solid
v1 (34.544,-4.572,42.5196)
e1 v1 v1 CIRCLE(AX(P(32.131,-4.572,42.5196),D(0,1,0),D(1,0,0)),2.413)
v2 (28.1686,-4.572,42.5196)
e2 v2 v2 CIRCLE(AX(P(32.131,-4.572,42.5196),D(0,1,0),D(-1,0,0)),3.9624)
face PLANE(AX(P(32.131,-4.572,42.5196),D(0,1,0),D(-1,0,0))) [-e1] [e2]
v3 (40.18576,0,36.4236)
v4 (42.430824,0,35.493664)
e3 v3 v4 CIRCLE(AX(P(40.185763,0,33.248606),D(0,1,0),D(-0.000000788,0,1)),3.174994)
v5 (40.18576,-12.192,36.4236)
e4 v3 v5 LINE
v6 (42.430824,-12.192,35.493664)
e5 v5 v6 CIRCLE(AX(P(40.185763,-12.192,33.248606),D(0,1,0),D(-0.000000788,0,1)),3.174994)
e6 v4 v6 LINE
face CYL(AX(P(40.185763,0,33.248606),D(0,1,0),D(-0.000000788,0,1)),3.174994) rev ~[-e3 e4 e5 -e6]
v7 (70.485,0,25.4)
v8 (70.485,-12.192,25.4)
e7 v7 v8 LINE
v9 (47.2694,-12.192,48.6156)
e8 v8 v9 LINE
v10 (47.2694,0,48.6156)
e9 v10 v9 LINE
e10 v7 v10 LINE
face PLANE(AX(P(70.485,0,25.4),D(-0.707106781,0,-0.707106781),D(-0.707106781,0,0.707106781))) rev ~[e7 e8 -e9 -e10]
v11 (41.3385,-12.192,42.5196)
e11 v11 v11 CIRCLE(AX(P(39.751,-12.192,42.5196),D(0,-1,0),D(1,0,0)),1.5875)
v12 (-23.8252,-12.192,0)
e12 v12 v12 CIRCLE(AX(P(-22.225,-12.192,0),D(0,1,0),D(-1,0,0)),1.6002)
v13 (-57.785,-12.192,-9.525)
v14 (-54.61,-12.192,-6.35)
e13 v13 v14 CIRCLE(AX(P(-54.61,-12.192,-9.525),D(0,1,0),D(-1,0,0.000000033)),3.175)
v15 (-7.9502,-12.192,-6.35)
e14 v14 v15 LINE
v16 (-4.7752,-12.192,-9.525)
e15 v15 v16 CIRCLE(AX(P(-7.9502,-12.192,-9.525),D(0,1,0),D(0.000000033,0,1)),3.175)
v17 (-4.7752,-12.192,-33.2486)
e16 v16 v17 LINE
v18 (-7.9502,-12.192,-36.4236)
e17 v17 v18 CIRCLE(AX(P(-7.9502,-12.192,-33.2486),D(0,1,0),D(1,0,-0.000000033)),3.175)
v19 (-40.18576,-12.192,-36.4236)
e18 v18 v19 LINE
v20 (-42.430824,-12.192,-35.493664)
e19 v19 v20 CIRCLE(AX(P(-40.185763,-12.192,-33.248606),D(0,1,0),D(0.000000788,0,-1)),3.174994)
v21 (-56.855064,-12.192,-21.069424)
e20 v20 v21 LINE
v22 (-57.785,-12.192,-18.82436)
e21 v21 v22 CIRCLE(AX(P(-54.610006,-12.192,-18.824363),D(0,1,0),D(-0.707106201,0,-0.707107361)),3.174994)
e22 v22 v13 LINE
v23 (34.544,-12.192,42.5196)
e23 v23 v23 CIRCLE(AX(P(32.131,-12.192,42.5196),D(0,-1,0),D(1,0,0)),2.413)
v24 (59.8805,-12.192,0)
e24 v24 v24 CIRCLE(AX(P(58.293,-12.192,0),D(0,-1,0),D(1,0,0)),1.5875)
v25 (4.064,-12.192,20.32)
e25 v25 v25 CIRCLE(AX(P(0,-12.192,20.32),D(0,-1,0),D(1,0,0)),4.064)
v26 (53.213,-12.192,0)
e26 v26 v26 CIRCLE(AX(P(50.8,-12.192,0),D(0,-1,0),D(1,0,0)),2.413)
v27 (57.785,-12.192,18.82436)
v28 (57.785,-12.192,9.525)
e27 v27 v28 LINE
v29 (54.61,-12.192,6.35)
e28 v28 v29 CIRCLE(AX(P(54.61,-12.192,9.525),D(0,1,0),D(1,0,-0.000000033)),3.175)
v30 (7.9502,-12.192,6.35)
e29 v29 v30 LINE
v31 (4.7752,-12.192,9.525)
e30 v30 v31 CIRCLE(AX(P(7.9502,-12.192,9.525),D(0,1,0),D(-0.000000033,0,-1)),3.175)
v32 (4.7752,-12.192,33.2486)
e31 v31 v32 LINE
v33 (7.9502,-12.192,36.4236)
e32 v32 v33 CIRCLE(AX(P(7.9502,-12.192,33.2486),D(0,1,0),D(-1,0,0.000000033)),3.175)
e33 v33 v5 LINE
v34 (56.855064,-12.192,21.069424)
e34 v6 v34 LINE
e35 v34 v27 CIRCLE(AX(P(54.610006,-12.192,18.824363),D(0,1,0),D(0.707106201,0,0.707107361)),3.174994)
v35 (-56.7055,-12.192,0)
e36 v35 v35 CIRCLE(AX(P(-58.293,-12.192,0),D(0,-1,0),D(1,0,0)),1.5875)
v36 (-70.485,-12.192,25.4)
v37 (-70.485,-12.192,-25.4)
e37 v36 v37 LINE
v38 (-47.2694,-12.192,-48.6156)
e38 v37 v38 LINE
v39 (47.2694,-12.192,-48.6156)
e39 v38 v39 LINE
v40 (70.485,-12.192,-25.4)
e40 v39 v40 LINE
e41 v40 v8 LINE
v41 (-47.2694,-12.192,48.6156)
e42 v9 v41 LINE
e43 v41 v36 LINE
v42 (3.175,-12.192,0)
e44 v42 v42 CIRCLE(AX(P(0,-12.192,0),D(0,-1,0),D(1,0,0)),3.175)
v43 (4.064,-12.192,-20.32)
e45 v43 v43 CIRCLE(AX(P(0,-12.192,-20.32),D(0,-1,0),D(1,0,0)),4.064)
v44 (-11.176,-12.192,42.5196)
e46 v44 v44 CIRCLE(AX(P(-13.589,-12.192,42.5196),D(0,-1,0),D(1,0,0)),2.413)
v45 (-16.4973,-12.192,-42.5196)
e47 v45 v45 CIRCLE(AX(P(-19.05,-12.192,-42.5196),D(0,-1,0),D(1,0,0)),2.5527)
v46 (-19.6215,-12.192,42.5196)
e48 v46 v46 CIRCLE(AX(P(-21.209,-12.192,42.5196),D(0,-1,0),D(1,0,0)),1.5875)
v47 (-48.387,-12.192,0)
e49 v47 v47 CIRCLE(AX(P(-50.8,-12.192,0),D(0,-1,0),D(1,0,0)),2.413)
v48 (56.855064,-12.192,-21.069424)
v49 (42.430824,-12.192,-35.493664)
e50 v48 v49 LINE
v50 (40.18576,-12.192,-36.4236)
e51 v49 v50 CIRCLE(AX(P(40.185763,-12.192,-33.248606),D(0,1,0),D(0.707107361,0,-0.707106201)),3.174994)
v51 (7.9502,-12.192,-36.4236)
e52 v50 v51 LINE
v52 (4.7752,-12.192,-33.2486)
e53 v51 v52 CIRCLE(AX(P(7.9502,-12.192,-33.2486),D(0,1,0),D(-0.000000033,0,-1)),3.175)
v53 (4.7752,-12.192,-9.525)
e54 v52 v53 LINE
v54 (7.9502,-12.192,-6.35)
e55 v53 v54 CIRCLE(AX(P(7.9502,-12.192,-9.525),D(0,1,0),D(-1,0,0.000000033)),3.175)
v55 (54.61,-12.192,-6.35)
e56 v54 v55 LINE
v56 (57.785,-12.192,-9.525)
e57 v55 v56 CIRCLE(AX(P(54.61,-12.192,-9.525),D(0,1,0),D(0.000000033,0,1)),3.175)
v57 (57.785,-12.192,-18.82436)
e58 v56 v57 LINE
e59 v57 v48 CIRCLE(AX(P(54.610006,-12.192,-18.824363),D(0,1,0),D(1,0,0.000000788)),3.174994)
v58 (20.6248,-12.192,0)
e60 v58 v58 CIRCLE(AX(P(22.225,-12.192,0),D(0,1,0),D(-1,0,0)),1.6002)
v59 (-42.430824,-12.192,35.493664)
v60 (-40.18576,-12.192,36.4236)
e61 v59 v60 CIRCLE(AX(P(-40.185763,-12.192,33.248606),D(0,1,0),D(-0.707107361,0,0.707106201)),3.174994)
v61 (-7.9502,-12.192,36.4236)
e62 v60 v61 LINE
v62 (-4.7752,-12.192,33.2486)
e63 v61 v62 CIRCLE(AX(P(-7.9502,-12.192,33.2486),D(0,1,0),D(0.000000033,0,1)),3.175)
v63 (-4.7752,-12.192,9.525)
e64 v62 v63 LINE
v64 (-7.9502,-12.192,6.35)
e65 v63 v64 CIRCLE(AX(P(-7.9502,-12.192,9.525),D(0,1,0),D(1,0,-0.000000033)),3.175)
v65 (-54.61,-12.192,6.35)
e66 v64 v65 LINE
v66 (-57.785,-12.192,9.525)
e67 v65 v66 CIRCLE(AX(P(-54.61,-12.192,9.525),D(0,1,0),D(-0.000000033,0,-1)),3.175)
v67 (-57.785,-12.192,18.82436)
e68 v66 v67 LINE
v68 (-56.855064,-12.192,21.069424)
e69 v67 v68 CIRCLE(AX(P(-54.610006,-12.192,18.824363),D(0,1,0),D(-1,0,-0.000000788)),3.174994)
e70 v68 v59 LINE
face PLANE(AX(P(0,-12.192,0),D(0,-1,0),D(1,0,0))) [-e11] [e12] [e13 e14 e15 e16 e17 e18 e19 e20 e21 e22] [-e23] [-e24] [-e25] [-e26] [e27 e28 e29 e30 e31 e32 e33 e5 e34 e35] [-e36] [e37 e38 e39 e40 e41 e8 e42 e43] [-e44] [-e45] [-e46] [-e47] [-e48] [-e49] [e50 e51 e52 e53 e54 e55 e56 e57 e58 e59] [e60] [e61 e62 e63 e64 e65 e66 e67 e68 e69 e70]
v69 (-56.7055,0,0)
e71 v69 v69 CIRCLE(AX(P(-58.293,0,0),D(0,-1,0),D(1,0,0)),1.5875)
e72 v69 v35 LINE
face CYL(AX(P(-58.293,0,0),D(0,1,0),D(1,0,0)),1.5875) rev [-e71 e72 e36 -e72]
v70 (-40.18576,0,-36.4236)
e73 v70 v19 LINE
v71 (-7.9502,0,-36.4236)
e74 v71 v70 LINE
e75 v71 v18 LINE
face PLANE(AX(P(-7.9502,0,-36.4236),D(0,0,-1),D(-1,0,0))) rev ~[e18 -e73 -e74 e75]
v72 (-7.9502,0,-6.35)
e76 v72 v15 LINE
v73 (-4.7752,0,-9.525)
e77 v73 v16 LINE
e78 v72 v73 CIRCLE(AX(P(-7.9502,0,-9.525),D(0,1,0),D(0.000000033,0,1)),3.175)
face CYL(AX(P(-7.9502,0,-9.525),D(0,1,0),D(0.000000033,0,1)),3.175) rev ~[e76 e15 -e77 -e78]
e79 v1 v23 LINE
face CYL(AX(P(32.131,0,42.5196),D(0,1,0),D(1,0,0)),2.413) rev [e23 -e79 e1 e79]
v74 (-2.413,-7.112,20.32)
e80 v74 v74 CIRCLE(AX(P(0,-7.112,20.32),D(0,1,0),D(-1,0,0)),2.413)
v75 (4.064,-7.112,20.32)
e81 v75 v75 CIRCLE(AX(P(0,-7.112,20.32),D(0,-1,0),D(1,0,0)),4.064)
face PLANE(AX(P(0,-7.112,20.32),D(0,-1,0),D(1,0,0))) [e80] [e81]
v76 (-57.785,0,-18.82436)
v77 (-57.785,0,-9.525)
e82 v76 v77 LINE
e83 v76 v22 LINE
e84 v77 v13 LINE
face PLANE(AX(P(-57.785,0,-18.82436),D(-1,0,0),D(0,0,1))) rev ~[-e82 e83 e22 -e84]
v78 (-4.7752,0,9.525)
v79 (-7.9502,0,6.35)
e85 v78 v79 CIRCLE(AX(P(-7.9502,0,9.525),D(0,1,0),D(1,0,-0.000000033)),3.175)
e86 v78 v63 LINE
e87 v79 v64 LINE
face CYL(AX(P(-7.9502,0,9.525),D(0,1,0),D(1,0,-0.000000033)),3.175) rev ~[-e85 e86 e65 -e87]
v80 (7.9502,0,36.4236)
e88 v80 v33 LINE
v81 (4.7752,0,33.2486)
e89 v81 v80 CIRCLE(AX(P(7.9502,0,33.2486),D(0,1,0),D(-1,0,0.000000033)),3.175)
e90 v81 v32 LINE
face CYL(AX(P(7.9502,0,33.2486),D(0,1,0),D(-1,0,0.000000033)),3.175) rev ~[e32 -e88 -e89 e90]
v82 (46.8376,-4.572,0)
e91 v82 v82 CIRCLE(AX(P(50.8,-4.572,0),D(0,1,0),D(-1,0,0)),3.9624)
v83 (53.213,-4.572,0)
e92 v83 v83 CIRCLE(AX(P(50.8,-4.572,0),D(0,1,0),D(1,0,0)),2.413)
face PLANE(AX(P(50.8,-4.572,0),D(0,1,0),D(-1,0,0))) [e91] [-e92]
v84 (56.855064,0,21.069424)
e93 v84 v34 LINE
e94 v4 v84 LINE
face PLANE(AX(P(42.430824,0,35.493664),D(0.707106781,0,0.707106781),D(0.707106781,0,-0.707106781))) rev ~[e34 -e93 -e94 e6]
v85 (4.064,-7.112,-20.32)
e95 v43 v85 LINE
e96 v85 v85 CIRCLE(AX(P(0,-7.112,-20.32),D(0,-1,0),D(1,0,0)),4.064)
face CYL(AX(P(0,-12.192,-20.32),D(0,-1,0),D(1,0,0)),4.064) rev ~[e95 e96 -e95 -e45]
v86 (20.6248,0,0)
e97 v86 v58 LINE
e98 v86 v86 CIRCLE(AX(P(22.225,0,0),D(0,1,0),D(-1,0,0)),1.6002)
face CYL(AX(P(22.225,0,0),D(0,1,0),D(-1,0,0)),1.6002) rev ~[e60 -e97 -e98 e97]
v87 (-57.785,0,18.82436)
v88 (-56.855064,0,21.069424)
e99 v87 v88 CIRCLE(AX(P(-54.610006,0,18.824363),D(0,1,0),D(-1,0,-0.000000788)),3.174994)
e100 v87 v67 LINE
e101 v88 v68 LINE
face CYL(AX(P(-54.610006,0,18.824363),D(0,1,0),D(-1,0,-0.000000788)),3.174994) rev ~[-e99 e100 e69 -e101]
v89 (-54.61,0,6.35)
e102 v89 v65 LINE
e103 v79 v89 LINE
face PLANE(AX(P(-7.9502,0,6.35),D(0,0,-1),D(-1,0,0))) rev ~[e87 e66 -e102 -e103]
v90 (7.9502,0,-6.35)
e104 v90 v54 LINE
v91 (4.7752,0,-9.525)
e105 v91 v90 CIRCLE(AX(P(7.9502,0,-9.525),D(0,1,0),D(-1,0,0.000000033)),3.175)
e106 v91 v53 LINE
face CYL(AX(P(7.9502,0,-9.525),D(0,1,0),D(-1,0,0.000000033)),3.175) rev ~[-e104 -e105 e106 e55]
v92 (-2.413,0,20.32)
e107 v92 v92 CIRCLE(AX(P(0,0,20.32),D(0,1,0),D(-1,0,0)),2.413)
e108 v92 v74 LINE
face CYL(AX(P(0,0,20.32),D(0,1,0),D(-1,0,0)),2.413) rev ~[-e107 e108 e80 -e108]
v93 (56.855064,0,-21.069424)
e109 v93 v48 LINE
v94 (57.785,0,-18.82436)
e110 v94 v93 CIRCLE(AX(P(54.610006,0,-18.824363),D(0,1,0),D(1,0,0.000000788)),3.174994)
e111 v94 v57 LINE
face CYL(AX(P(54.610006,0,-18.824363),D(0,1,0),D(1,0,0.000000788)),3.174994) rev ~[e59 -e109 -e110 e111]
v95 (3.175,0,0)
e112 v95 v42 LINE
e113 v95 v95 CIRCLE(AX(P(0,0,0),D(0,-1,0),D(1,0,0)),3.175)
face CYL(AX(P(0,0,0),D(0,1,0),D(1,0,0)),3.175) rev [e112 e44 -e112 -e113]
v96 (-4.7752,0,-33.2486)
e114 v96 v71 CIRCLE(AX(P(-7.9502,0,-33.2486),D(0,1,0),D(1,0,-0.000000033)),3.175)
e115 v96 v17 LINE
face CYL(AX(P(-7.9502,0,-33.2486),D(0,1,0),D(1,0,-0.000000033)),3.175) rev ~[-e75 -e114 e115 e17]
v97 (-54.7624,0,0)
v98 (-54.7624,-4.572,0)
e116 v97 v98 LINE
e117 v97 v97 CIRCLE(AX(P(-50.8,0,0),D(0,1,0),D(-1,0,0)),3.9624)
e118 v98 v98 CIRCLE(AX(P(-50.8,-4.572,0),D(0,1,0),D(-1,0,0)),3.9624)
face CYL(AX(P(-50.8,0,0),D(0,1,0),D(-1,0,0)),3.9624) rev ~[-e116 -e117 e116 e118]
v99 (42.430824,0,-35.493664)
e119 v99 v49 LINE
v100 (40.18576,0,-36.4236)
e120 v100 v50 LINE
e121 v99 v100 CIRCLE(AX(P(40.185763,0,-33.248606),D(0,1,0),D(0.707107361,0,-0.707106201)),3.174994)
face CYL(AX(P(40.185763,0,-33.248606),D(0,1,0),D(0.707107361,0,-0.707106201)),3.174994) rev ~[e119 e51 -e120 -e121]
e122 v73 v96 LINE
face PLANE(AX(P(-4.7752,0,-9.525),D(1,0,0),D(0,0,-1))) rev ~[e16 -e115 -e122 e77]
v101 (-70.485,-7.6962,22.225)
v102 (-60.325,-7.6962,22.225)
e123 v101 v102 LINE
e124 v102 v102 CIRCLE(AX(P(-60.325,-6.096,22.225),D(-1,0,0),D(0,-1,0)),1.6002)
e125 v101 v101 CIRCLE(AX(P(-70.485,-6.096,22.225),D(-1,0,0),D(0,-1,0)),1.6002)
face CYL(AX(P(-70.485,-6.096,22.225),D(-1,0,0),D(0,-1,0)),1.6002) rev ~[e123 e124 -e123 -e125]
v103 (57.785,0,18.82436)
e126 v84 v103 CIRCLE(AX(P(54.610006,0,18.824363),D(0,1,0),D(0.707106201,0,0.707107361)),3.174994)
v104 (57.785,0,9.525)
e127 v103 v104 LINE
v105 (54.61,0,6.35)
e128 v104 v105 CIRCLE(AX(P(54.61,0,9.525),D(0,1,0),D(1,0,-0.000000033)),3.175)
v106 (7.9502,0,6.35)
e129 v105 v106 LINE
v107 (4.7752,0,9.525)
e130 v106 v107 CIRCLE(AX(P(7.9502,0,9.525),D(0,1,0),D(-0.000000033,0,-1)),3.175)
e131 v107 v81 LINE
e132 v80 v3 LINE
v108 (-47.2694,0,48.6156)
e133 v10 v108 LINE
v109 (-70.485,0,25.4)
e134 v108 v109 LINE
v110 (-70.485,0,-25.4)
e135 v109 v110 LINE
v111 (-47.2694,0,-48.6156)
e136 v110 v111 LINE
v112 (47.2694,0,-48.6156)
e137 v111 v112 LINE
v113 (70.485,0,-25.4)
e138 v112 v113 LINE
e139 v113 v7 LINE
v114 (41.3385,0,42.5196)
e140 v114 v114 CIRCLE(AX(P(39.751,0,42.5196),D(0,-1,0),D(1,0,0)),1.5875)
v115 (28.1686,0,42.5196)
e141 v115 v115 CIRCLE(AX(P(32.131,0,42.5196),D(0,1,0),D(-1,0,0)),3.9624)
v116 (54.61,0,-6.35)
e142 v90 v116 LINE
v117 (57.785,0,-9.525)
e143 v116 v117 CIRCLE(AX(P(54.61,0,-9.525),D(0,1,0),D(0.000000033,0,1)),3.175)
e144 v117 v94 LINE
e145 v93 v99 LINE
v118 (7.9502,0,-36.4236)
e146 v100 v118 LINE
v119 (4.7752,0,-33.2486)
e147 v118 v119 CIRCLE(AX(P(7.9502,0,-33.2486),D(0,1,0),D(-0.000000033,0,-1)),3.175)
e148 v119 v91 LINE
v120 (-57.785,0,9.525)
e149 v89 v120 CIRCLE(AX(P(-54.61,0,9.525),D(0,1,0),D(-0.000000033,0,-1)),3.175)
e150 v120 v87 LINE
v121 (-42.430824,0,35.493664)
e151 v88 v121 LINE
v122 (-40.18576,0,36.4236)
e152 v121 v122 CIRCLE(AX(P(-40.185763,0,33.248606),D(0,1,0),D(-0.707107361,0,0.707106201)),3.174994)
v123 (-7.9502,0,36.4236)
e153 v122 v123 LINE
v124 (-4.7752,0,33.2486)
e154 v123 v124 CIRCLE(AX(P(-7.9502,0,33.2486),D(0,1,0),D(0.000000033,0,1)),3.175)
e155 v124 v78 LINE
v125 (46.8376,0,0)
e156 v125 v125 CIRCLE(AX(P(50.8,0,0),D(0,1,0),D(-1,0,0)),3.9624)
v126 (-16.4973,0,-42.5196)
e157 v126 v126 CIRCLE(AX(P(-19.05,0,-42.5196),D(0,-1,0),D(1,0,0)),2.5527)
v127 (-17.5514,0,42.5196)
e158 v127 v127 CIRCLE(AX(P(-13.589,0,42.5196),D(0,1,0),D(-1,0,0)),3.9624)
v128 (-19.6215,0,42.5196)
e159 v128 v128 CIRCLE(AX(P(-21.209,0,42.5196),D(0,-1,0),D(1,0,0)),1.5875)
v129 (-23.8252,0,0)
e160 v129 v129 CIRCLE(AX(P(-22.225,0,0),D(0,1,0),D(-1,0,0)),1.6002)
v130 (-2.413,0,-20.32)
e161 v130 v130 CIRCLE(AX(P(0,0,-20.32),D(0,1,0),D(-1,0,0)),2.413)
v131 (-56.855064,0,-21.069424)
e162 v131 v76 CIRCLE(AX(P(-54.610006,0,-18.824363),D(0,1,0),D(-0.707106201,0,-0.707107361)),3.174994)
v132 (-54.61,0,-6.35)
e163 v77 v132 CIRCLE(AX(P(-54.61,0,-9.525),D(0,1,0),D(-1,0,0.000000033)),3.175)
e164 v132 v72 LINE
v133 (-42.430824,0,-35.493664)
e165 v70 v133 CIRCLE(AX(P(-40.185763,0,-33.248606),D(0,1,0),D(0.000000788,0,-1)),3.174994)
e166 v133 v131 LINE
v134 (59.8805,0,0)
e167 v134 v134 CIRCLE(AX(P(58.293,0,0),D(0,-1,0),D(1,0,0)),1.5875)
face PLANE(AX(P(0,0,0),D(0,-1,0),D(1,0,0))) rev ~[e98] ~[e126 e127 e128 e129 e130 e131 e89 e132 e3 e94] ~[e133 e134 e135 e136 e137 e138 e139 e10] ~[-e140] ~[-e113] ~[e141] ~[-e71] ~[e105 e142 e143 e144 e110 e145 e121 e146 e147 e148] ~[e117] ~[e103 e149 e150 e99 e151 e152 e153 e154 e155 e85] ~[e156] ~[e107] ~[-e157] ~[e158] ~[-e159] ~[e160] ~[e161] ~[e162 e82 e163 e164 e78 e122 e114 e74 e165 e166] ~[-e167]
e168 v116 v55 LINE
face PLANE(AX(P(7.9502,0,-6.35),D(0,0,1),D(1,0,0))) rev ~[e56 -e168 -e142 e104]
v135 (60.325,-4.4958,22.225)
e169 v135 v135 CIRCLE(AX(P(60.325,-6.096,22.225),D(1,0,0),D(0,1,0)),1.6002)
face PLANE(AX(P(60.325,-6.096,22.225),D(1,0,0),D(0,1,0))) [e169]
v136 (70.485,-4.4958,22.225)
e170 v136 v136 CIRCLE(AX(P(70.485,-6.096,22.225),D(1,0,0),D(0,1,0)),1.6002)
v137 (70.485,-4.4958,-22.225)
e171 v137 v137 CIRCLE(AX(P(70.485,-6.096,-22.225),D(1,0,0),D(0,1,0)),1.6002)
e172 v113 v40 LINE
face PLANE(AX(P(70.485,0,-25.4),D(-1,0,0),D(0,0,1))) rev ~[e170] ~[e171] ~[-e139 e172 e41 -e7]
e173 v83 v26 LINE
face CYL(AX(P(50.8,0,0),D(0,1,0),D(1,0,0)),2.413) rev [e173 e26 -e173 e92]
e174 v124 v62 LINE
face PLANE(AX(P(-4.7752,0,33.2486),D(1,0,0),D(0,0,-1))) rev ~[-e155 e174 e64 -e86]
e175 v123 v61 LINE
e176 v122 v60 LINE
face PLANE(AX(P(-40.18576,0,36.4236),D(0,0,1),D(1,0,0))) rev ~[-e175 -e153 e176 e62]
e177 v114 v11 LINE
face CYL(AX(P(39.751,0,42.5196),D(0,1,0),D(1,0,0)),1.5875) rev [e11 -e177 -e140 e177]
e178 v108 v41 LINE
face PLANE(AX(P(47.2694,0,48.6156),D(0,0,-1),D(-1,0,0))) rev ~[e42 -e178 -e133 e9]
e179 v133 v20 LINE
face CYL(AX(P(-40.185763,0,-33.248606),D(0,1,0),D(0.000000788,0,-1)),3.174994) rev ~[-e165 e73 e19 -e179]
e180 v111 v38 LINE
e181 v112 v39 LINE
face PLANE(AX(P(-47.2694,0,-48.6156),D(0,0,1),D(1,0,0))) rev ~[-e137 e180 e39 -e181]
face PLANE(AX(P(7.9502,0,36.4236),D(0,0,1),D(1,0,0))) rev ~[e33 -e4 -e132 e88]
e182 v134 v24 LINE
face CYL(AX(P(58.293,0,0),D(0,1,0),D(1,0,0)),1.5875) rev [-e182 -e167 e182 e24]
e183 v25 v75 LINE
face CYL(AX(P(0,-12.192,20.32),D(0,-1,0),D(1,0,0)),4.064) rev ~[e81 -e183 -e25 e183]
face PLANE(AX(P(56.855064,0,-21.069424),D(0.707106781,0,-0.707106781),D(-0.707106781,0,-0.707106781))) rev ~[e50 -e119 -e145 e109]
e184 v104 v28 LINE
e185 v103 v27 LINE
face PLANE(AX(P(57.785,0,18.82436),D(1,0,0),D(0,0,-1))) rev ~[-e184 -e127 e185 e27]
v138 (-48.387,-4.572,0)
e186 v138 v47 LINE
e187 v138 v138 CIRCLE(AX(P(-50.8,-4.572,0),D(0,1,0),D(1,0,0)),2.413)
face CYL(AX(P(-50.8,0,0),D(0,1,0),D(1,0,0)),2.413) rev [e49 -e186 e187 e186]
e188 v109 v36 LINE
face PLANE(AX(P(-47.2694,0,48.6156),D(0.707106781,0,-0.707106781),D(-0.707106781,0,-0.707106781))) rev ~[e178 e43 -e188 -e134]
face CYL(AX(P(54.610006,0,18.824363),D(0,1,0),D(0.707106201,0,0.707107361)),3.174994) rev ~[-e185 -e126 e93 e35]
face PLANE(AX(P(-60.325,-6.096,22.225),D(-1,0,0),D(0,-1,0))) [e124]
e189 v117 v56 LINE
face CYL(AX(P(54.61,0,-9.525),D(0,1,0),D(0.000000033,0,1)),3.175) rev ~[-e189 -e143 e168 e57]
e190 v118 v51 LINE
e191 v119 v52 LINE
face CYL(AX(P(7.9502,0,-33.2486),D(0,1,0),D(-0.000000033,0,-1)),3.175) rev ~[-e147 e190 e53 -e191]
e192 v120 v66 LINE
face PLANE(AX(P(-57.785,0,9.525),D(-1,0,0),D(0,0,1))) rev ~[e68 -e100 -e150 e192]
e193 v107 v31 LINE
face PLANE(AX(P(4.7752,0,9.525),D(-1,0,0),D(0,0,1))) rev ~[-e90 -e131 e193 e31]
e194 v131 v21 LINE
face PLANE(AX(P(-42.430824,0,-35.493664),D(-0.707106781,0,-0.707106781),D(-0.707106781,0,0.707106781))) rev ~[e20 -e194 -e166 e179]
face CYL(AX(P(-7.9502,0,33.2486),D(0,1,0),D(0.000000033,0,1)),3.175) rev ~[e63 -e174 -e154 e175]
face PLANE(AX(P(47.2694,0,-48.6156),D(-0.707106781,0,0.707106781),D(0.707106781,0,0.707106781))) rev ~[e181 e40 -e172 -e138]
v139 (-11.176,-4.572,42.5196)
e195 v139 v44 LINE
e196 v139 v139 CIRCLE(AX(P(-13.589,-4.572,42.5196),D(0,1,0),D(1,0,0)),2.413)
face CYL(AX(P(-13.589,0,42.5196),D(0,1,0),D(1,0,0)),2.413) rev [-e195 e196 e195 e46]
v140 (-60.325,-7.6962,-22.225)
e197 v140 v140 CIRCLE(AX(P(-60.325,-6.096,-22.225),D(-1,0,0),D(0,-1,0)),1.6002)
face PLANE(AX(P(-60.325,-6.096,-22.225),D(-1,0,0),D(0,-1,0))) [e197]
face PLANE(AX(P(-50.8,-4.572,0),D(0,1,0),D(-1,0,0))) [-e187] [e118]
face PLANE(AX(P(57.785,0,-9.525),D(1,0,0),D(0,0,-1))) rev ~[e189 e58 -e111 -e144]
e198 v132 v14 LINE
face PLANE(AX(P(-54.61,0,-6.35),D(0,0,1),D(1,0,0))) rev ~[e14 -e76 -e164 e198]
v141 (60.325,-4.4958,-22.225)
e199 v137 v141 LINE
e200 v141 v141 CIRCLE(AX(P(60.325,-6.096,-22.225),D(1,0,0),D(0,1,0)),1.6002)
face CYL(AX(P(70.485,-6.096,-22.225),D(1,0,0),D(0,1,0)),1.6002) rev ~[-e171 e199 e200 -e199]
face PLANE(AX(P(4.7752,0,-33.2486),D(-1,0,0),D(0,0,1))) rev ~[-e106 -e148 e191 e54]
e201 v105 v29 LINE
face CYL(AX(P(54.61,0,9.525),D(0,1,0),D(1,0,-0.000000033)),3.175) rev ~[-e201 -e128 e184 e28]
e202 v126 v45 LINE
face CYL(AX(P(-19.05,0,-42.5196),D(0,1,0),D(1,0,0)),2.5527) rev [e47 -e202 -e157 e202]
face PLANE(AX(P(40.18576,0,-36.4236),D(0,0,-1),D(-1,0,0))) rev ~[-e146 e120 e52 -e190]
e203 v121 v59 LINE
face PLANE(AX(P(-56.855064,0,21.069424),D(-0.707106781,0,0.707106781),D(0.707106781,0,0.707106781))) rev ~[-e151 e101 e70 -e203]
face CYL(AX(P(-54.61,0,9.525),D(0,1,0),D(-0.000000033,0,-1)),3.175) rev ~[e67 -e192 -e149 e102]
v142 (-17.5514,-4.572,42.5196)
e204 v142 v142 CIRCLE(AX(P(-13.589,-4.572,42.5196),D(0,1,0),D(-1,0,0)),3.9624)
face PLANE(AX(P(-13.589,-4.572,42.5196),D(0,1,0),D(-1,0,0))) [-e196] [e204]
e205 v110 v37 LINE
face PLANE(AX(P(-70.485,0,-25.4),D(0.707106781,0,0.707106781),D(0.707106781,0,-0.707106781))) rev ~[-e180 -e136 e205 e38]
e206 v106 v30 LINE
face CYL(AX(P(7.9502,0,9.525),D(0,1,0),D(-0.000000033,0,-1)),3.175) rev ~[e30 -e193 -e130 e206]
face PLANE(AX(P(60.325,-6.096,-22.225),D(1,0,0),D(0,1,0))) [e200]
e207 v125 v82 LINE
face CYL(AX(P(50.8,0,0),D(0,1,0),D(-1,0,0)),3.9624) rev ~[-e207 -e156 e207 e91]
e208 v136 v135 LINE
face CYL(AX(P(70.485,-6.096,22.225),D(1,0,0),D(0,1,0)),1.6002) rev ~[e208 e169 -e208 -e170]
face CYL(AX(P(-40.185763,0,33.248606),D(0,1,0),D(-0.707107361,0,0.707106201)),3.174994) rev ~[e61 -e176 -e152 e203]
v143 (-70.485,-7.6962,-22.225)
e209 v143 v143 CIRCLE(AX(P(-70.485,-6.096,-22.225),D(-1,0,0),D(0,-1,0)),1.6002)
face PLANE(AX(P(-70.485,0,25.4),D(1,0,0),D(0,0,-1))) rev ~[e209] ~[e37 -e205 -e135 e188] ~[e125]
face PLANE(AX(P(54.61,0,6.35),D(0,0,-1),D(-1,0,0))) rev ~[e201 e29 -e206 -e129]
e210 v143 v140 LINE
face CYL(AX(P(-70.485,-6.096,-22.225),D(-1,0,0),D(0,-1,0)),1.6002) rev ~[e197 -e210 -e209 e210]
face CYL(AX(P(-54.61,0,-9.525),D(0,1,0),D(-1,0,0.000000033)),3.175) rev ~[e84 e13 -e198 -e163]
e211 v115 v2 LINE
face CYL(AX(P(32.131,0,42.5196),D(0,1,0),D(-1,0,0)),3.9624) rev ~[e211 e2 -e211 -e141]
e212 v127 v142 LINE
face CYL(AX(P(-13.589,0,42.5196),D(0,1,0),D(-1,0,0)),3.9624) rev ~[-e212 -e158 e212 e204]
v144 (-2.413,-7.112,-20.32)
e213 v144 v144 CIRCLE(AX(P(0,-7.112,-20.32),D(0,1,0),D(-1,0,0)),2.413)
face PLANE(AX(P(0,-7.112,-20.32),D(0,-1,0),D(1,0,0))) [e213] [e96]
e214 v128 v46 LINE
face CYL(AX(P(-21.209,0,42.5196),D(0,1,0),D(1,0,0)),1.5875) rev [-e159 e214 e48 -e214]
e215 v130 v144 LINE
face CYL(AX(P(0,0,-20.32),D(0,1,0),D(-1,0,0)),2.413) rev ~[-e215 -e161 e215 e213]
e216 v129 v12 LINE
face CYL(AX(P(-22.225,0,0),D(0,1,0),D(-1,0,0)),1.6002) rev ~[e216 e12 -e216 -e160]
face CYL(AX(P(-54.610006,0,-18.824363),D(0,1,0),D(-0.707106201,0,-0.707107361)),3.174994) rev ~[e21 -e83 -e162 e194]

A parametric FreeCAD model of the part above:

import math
import FreeCAD as App
import Part
import Sketcher
from FreeCAD import Vector
Q = App.Units.Quantity

doc = App.newDocument("Part")
body = doc.addObject("PartDesign::Body", "Body")

# Sketch on XZ plane
sketch1 = body.newObject("Sketcher::SketchObject", "Sketch")
sketch1.AttachmentSupport = (doc.getObject("XZ_Plane"), [""])
sketch1.MapMode = "FlatFace"
sketch1.addGeometry(Part.LineSegment(Vector(47.3, 48.6, 0), Vector(-47.3, 48.6, 0)), False)
sketch1.addGeometry(Part.LineSegment(Vector(-47.3, 48.6, 0), Vector(-70.5, 25.4, 0)), False)
sketch1.addGeometry(Part.LineSegment(Vector(-70.5, 25.4, 0), Vector(-70.5, -25.4, 0)), False)
sketch1.addGeometry(Part.LineSegment(Vector(-70.5, -25.4, 0), Vector(-47.3, -48.6, 0)), False)
sketch1.addGeometry(Part.LineSegment(Vector(-47.3, -48.6, 0), Vector(47.3, -48.6, 0)), False)
sketch1.addGeometry(Part.LineSegment(Vector(47.3, -48.6, 0), Vector(70.5, -25.4, 0)), False)
sketch1.addGeometry(Part.LineSegment(Vector(70.5, -25.4, 0), Vector(70.5, 25.4, 0)), False)
sketch1.addGeometry(Part.LineSegment(Vector(70.5, 25.4, 0), Vector(47.3, 48.6, 0)), False)
sketch1.addGeometry(Part.Circle(Vector(-19.1, -42.5, 0), Vector(0, 0, 1), 2.6), False)
sketch1.addGeometry(Part.ArcOfCircle(Part.Circle(Vector(-8, -33.2, 0), Vector(0, 0, 1), 3.2), math.radians(-90), math.radians(0)), False)
sketch1.addGeometry(Part.LineSegment(Vector(-8, -36.4, 0), Vector(-40.2, -36.4, 0)), False)
sketch1.addGeometry(Part.ArcOfCircle(Part.Circle(Vector(-40.2, -33.2, 0), Vector(0, 0, 1), 3.2), math.radians(-135), math.radians(-90)), False)
sketch1.addGeometry(Part.LineSegment(Vector(-42.4, -35.5, 0), Vector(-56.9, -21.1, 0)), False)
sketch1.addGeometry(Part.ArcOfCircle(Part.Circle(Vector(-54.6, -18.8, 0), Vector(0, 0, 1), 3.2), math.radians(180), math.radians(225)), False)
sketch1.addGeometry(Part.LineSegment(Vector(-57.8, -18.8, 0), Vector(-57.8, -9.5, 0)), False)
sketch1.addGeometry(Part.ArcOfCircle(Part.Circle(Vector(-54.6, -9.5, 0), Vector(0, 0, 1), 3.2), math.radians(90), math.radians(180)), False)
sketch1.addGeometry(Part.LineSegment(Vector(-54.6, -6.3, 0), Vector(-8, -6.3, 0)), False)
sketch1.addGeometry(Part.ArcOfCircle(Part.Circle(Vector(-8, -9.5, 0), Vector(0, 0, 1), 3.2), math.radians(0), math.radians(90)), False)
sketch1.addGeometry(Part.LineSegment(Vector(-4.8, -9.5, 0), Vector(-4.8, -33.2, 0)), False)
sketch1.addGeometry(Part.LineSegment(Vector(57.8, -9.5, 0), Vector(57.8, -18.8, 0)), False)
sketch1.addGeometry(Part.ArcOfCircle(Part.Circle(Vector(54.6, -18.8, 0), Vector(0, 0, 1), 3.2), math.radians(-45), math.radians(0)), False)
sketch1.addGeometry(Part.LineSegment(Vector(56.9, -21.1, 0), Vector(42.4, -35.5, 0)), False)
sketch1.addGeometry(Part.ArcOfCircle(Part.Circle(Vector(40.2, -33.2, 0), Vector(0, 0, 1), 3.2), math.radians(-90), math.radians(-45)), False)
sketch1.addGeometry(Part.LineSegment(Vector(40.2, -36.4, 0), Vector(8, -36.4, 0)), False)
sketch1.addGeometry(Part.ArcOfCircle(Part.Circle(Vector(8, -33.2, 0), Vector(0, 0, 1), 3.2), math.radians(-180), math.radians(-90)), False)
sketch1.addGeometry(Part.LineSegment(Vector(4.8, -33.2, 0), Vector(4.8, -9.5, 0)), False)
sketch1.addGeometry(Part.ArcOfCircle(Part.Circle(Vector(8, -9.5, 0), Vector(0, 0, 1), 3.2), math.radians(90), math.radians(180)), False)
sketch1.addGeometry(Part.LineSegment(Vector(8, -6.3, 0), Vector(54.6, -6.3, 0)), False)
sketch1.addGeometry(Part.ArcOfCircle(Part.Circle(Vector(54.6, -9.5, 0), Vector(0, 0, 1), 3.2), math.radians(0), math.radians(90)), False)
sketch1.addGeometry(Part.Circle(Vector(-58.3, 0, 0), Vector(0, 0, 1), 1.6), False)
sketch1.addGeometry(Part.Circle(Vector(-50.8, 0, 0), Vector(0, 0, 1), 2.4), False)
sketch1.addGeometry(Part.ArcOfCircle(Part.Circle(Vector(-40.2, 33.2, 0), Vector(0, 0, 1), 3.2), math.radians(90), math.radians(135)), False)
sketch1.addGeometry(Part.LineSegment(Vector(-40.2, 36.4, 0), Vector(-8, 36.4, 0)), False)
sketch1.addGeometry(Part.ArcOfCircle(Part.Circle(Vector(-8, 33.2, 0), Vector(0, 0, 1), 3.2), math.radians(0), math.radians(90)), False)
sketch1.addGeometry(Part.LineSegment(Vector(-4.8, 33.2, 0), Vector(-4.8, 9.5, 0)), False)
sketch1.addGeometry(Part.ArcOfCircle(Part.Circle(Vector(-8, 9.5, 0), Vector(0, 0, 1), 3.2), math.radians(-90), math.radians(0)), False)
sketch1.addGeometry(Part.LineSegment(Vector(-8, 6.3, 0), Vector(-54.6, 6.3, 0)), False)
sketch1.addGeometry(Part.ArcOfCircle(Part.Circle(Vector(-54.6, 9.5, 0), Vector(0, 0, 1), 3.2), math.radians(-180), math.radians(-90)), False)
sketch1.addGeometry(Part.LineSegment(Vector(-57.8, 9.5, 0), Vector(-57.8, 18.8, 0)), False)
sketch1.addGeometry(Part.ArcOfCircle(Part.Circle(Vector(-54.6, 18.8, 0), Vector(0, 0, 1), 3.2), math.radians(135), math.radians(180)), False)
sketch1.addGeometry(Part.LineSegment(Vector(-56.9, 21.1, 0), Vector(-42.4, 35.5, 0)), False)
sketch1.addGeometry(Part.Circle(Vector(-21.2, 42.5, 0), Vector(0, 0, 1), 1.6), False)
sketch1.addGeometry(Part.Circle(Vector(-13.6, 42.5, 0), Vector(0, 0, 1), 2.4), False)
sketch1.addGeometry(Part.Circle(Vector(0, 0, 0), Vector(0, 0, 1), 3.2), False)
sketch1.addGeometry(Part.Circle(Vector(50.8, 0, 0), Vector(0, 0, 1), 2.4), False)
sketch1.addGeometry(Part.Circle(Vector(58.3, 0, 0), Vector(0, 0, 1), 1.6), False)
sketch1.addGeometry(Part.LineSegment(Vector(57.8, 18.8, 0), Vector(57.8, 9.5, 0)), False)
sketch1.addGeometry(Part.ArcOfCircle(Part.Circle(Vector(54.6, 9.5, 0), Vector(0, 0, 1), 3.2), math.radians(-90), math.radians(0)), False)
sketch1.addGeometry(Part.LineSegment(Vector(54.6, 6.3, 0), Vector(8, 6.3, 0)), False)
sketch1.addGeometry(Part.ArcOfCircle(Part.Circle(Vector(8, 9.5, 0), Vector(0, 0, 1), 3.2), math.radians(-180), math.radians(-90)), False)
sketch1.addGeometry(Part.LineSegment(Vector(4.8, 9.5, 0), Vector(4.8, 33.2, 0)), False)
sketch1.addGeometry(Part.ArcOfCircle(Part.Circle(Vector(8, 33.2, 0), Vector(0, 0, 1), 3.2), math.radians(90), math.radians(180)), False)
sketch1.addGeometry(Part.LineSegment(Vector(8, 36.4, 0), Vector(40.2, 36.4, 0)), False)
sketch1.addGeometry(Part.ArcOfCircle(Part.Circle(Vector(40.2, 33.2, 0), Vector(0, 0, 1), 3.2), math.radians(45), math.radians(90)), False)
sketch1.addGeometry(Part.LineSegment(Vector(42.4, 35.5, 0), Vector(56.9, 21.1, 0)), False)
sketch1.addGeometry(Part.ArcOfCircle(Part.Circle(Vector(54.6, 18.8, 0), Vector(0, 0, 1), 3.2), math.radians(0), math.radians(45)), False)
sketch1.addGeometry(Part.Circle(Vector(32.1, 42.5, 0), Vector(0, 0, 1), 2.4), False)
sketch1.addGeometry(Part.Circle(Vector(39.8, 42.5, 0), Vector(0, 0, 1), 1.6), False)
sketch1.addConstraint(Sketcher.Constraint("Coincident", 0, 2, 1, 1))
sketch1.addConstraint(Sketcher.Constraint("Coincident", 1, 2, 2, 1))
sketch1.addConstraint(Sketcher.Constraint("Coincident", 2, 2, 3, 1))
sketch1.addConstraint(Sketcher.Constraint("Coincident", 3, 2, 4, 1))
sketch1.addConstraint(Sketcher.Constraint("Coincident", 4, 2, 5, 1))
sketch1.addConstraint(Sketcher.Constraint("Coincident", 5, 2, 6, 1))
sketch1.addConstraint(Sketcher.Constraint("Coincident", 6, 2, 7, 1))
sketch1.addConstraint(Sketcher.Constraint("Coincident", 7, 2, 0, 1))
sketch1.addConstraint(Sketcher.Constraint("Tangent", 9, 1, 10, 1))
sketch1.addConstraint(Sketcher.Constraint("Tangent", 10, 2, 11, 2))
sketch1.addConstraint(Sketcher.Constraint("Tangent", 11, 1, 12, 1))
sketch1.addConstraint(Sketcher.Constraint("Tangent", 12, 2, 13, 2))
sketch1.addConstraint(Sketcher.Constraint("Tangent", 13, 1, 14, 1))
sketch1.addConstraint(Sketcher.Constraint("Tangent", 14, 2, 15, 2))
sketch1.addConstraint(Sketcher.Constraint("Tangent", 15, 1, 16, 1))
sketch1.addConstraint(Sketcher.Constraint("Tangent", 16, 2, 17, 2))
sketch1.addConstraint(Sketcher.Constraint("Tangent", 17, 1, 18, 1))
sketch1.addConstraint(Sketcher.Constraint("Tangent", 18, 2, 9, 2))
sketch1.addConstraint(Sketcher.Constraint("Tangent", 19, 2, 20, 2))
sketch1.addConstraint(Sketcher.Constraint("Tangent", 20, 1, 21, 1))
sketch1.addConstraint(Sketcher.Constraint("Tangent", 21, 2, 22, 2))
sketch1.addConstraint(Sketcher.Constraint("Tangent", 22, 1, 23, 1))
sketch1.addConstraint(Sketcher.Constraint("Tangent", 23, 2, 24, 2))
sketch1.addConstraint(Sketcher.Constraint("Tangent", 24, 1, 25, 1))
sketch1.addConstraint(Sketcher.Constraint("Tangent", 25, 2, 26, 2))
sketch1.addConstraint(Sketcher.Constraint("Tangent", 26, 1, 27, 1))
sketch1.addConstraint(Sketcher.Constraint("Tangent", 27, 2, 28, 2))
sketch1.addConstraint(Sketcher.Constraint("Tangent", 28, 1, 19, 1))
sketch1.addConstraint(Sketcher.Constraint("Tangent", 31, 1, 32, 1))
sketch1.addConstraint(Sketcher.Constraint("Tangent", 32, 2, 33, 2))
sketch1.addConstraint(Sketcher.Constraint("Tangent", 33, 1, 34, 1))
sketch1.addConstraint(Sketcher.Constraint("Tangent", 34, 2, 35, 2))
sketch1.addConstraint(Sketcher.Constraint("Tangent", 35, 1, 36, 1))
sketch1.addConstraint(Sketcher.Constraint("Tangent", 36, 2, 37, 2))
sketch1.addConstraint(Sketcher.Constraint("Tangent", 37, 1, 38, 1))
sketch1.addConstraint(Sketcher.Constraint("Tangent", 38, 2, 39, 2))
sketch1.addConstraint(Sketcher.Constraint("Tangent", 39, 1, 40, 1))
sketch1.addConstraint(Sketcher.Constraint("Tangent", 40, 2, 31, 2))
sketch1.addConstraint(Sketcher.Constraint("Tangent", 46, 2, 47, 2))
sketch1.addConstraint(Sketcher.Constraint("Tangent", 47, 1, 48, 1))
sketch1.addConstraint(Sketcher.Constraint("Tangent", 48, 2, 49, 2))
sketch1.addConstraint(Sketcher.Constraint("Tangent", 49, 1, 50, 1))
sketch1.addConstraint(Sketcher.Constraint("Tangent", 50, 2, 51, 2))
sketch1.addConstraint(Sketcher.Constraint("Tangent", 51, 1, 52, 1))
sketch1.addConstraint(Sketcher.Constraint("Tangent", 52, 2, 53, 2))
sketch1.addConstraint(Sketcher.Constraint("Tangent", 53, 1, 54, 1))
sketch1.addConstraint(Sketcher.Constraint("Tangent", 54, 2, 55, 2))
sketch1.addConstraint(Sketcher.Constraint("Tangent", 55, 1, 46, 1))
sketch1.addConstraint(Sketcher.Constraint("Horizontal", 0))
sketch1.addConstraint(Sketcher.Constraint("Vertical", 2))
sketch1.addConstraint(Sketcher.Constraint("Horizontal", 4))
sketch1.addConstraint(Sketcher.Constraint("Vertical", 6))
sketch1.addConstraint(Sketcher.Constraint("Horizontal", 10))
sketch1.addConstraint(Sketcher.Constraint("Vertical", 14))
sketch1.addConstraint(Sketcher.Constraint("Horizontal", 16))
sketch1.addConstraint(Sketcher.Constraint("Vertical", 18))
sketch1.addConstraint(Sketcher.Constraint("Vertical", 19))
sketch1.addConstraint(Sketcher.Constraint("Horizontal", 23))
sketch1.addConstraint(Sketcher.Constraint("Vertical", 25))
sketch1.addConstraint(Sketcher.Constraint("Horizontal", 27))
sketch1.addConstraint(Sketcher.Constraint("Horizontal", 32))
sketch1.addConstraint(Sketcher.Constraint("Vertical", 34))
sketch1.addConstraint(Sketcher.Constraint("Horizontal", 36))
sketch1.addConstraint(Sketcher.Constraint("Vertical", 38))
sketch1.addConstraint(Sketcher.Constraint("Vertical", 46))
sketch1.addConstraint(Sketcher.Constraint("Horizontal", 48))
sketch1.addConstraint(Sketcher.Constraint("Vertical", 50))
sketch1.addConstraint(Sketcher.Constraint("Horizontal", 52))
sketch1.addConstraint(Sketcher.Constraint("Coincident", 43, 3, -1, 1))
sketch1.addConstraint(Sketcher.Constraint("Equal", 11, 13))
sketch1.addConstraint(Sketcher.Constraint("Equal", 9, 15))
sketch1.addConstraint(Sketcher.Constraint("Equal", 15, 17))
sketch1.addConstraint(Sketcher.Constraint("Equal", 13, 20))
sketch1.addConstraint(Sketcher.Constraint("Equal", 20, 22))
sketch1.addConstraint(Sketcher.Constraint("Equal", 17, 24))
sketch1.addConstraint(Sketcher.Constraint("Equal", 24, 26))
sketch1.addConstraint(Sketcher.Constraint("Equal", 26, 28))
sketch1.addConstraint(Sketcher.Constraint("Equal", 22, 31))
sketch1.addConstraint(Sketcher.Constraint("Equal", 28, 33))
sketch1.addConstraint(Sketcher.Constraint("Equal", 33, 35))
sketch1.addConstraint(Sketcher.Constraint("Equal", 35, 37))
sketch1.addConstraint(Sketcher.Constraint("Equal", 31, 39))
sketch1.addConstraint(Sketcher.Constraint("Equal", 29, 41))
sketch1.addConstraint(Sketcher.Constraint("Equal", 30, 42))
sketch1.addConstraint(Sketcher.Constraint("Equal", 37, 43))
sketch1.addConstraint(Sketcher.Constraint("Equal", 42, 44))
sketch1.addConstraint(Sketcher.Constraint("Equal", 41, 45))
sketch1.addConstraint(Sketcher.Constraint("Equal", 43, 47))
sketch1.addConstraint(Sketcher.Constraint("Equal", 47, 49))
sketch1.addConstraint(Sketcher.Constraint("Equal", 49, 51))
sketch1.addConstraint(Sketcher.Constraint("Equal", 39, 53))
sketch1.addConstraint(Sketcher.Constraint("Equal", 53, 55))
sketch1.addConstraint(Sketcher.Constraint("Equal", 44, 56))
sketch1.addConstraint(Sketcher.Constraint("Equal", 45, 57))
sketch1.addConstraint(Sketcher.Constraint("Symmetric", 22, 3, 31, 3, -1, 1))
sketch1.addConstraint(Sketcher.Constraint("Symmetric", 26, 3, 35, 3, -1, 1))
sketch1.addConstraint(Sketcher.Constraint("Symmetric", 20, 3, 39, 3, -1, 1))
sketch1.addConstraint(Sketcher.Constraint("Symmetric", 30, 3, 44, 3, -1, 1))
sketch1.addConstraint(Sketcher.Constraint("Symmetric", 29, 3, 45, 3, -1, 1))
sketch1.addConstraint(Sketcher.Constraint("Symmetric", 15, 3, 47, 3, -1, 1))
sketch1.addConstraint(Sketcher.Constraint("Symmetric", 9, 3, 51, 3, -1, 1))
sketch1.addConstraint(Sketcher.Constraint("Symmetric", 0, 2, 4, 2, -1, 1))
sketch1.addConstraint(Sketcher.Constraint("Symmetric", 1, 2, 5, 2, -1, 1))
sketch1.addConstraint(Sketcher.Constraint("Symmetric", 11, 1, 53, 1, -1, 1))
sketch1.addConstraint(Sketcher.Constraint("Symmetric", 13, 3, 20, 3, -2))
sketch1.addConstraint(Sketcher.Constraint("Symmetric", 11, 3, 22, 3, -2))
sketch1.addConstraint(Sketcher.Constraint("Symmetric", 17, 3, 26, 3, -2))
sketch1.addConstraint(Sketcher.Constraint("PointOnObject", 29, 3, -1))
sketch1.addConstraint(Sketcher.Constraint("PointOnObject", 30, 3, -1))
sketch1.addConstraint(Sketcher.Constraint("Perpendicular", 1, 3))
sketch1.addConstraint(Sketcher.Constraint("Perpendicular", 5, 7))
sketch1.addConstraint(Sketcher.Constraint("Parallel", 7, 12))
sketch1.addConstraint(Sketcher.Constraint("Perpendicular", 12, 21))
sketch1.addConstraint(Sketcher.Constraint("Horizontal", 41, 3, 42, 3))
sketch1.addConstraint(Sketcher.Constraint("Horizontal", 42, 3, 56, 3))
sketch1.addConstraint(Sketcher.Constraint("Horizontal", 56, 3, 57, 3))
sketch1.addConstraint(Sketcher.Constraint("Horizontal", 2, 2, 5, 2))
sketch1.addConstraint(Sketcher.Constraint("Horizontal", 1, 2, 6, 2))
sketch1.addConstraint(Sketcher.Constraint("Diameter", 30, Q("0.19 in")))
sketch1.addConstraint(Sketcher.Constraint("Diameter", 43, Q("0.25 in")))
sketch1.addConstraint(Sketcher.Constraint("DistanceY", 2, 2, 2, 1, Q("2 in")))
sketch1.addConstraint(Sketcher.Constraint("Diameter", 8, Q("0.201 in")))
sketch1.addConstraint(Sketcher.Constraint("Diameter", 29, Q("0.125 in")))
sketch1.addConstraint(Sketcher.Constraint("DistanceX", 30, 3, -1, 1, Q("2 in")))
sketch1.addConstraint(Sketcher.Constraint("DistanceX", 0, 2, 0, 1, Q("3.722 in")))
sketch1.addConstraint(Sketcher.Constraint("DistanceX", 16, 1, 16, 2, Q("1.837 in")))
sketch1.addConstraint(Sketcher.Constraint("DistanceY", 18, 2, 18, 1, Q("0.934 in")))
sketch1.addConstraint(Sketcher.Constraint("DistanceX", 8, 3, -1, 1, Q("0.75 in")))
sketch1.addConstraint(Sketcher.Constraint("DistanceX", 15, 3, -1, 1, Q("2.15 in")))
sketch1.addConstraint(Sketcher.Constraint("DistanceY", 15, 1, -1, 1, Q("0.25 in")))
sketch1.addConstraint(Sketcher.Constraint("DistanceY", 8, 3, -1, 1, Q("1.674 in")))
sketch1.addConstraint(Sketcher.Constraint("DistanceX", 29, 3, -1, 1, Q("2.295 in")))
sketch1.addConstraint(Sketcher.Constraint("DistanceX", 41, 3, -1, 1, Q("0.835 in")))
sketch1.addConstraint(Sketcher.Constraint("DistanceY", -1, 1, 41, 3, Q("1.674 in")))
sketch1.addConstraint(Sketcher.Constraint("DistanceX", 42, 3, -1, 1, Q("0.535 in")))
sketch1.addConstraint(Sketcher.Constraint("DistanceX", -1, 1, 56, 3, Q("1.265 in")))
sketch1.addConstraint(Sketcher.Constraint("DistanceX", -1, 1, 57, 3, Q("1.565 in")))
sketch1.addConstraint(Sketcher.Constraint("DistanceY", -1, 1, 0, 2, Q("1.914 in")))
sketch1.addConstraint(Sketcher.Constraint("Radius", 11, 3.174994))
sketch1.addConstraint(Sketcher.Constraint("DistanceX", 10, 2, 10, 1, 32.23556))
pad1 = body.newObject("PartDesign::Pad", "Pad")
pad1.Profile = sketch1
pad1.Length = Q("0.48 in")

# Sketch on XZ plane
sketch2 = body.newObject("Sketcher::SketchObject", "Sketch001")
sketch2.AttachmentSupport = (doc.getObject("XZ_Plane"), [""])
sketch2.MapMode = "FlatFace"
sketch2.addGeometry(Part.Circle(Vector(-50.8, 0, 0), Vector(0, 0, 1), 4), False)
sketch2.addGeometry(Part.Circle(Vector(-13.6, 42.5, 0), Vector(0, 0, 1), 4), False)
sketch2.addGeometry(Part.Circle(Vector(32.1, 42.5, 0), Vector(0, 0, 1), 4), False)
sketch2.addGeometry(Part.Circle(Vector(50.8, 0, 0), Vector(0, 0, 1), 4), False)
sketch2.addConstraint(Sketcher.Constraint("Equal", 0, 1))
sketch2.addConstraint(Sketcher.Constraint("Equal", 1, 2))
sketch2.addConstraint(Sketcher.Constraint("Equal", 2, 3))
sketch2.addConstraint(Sketcher.Constraint("Symmetric", 0, 3, 3, 3, -1, 1))
sketch2.addConstraint(Sketcher.Constraint("PointOnObject", 0, 3, -1))
sketch2.addConstraint(Sketcher.Constraint("Horizontal", 1, 3, 2, 3))
sketch2.addConstraint(Sketcher.Constraint("Diameter", 0, Q("0.312 in")))
sketch2.addConstraint(Sketcher.Constraint("DistanceX", 0, 3, -1, 1, Q("2 in")))
sketch2.addConstraint(Sketcher.Constraint("DistanceX", 1, 3, 2, 3, Q("1.8 in")))
sketch2.addConstraint(Sketcher.Constraint("DistanceX", 1, 3, -1, 1, Q("0.535 in")))
sketch2.addConstraint(Sketcher.Constraint("DistanceY", -1, 1, 1, 3, Q("1.674 in")))
pocket1 = body.newObject("PartDesign::Pocket", "Pocket")
pocket1.Profile = sketch2
pocket1.Length = Q("0.18 in")
pocket1.Reversed = True

# Sketch on YZ plane
sketch3 = body.newObject("Sketcher::SketchObject", "Sketch002")
sketch3.AttachmentSupport = (doc.getObject("YZ_Plane"), [""])
sketch3.MapMode = "FlatFace"
sketch3.AttachmentOffset = App.Placement(Vector(0, 0, 2.775 * 25.4), App.Rotation())
sketch3.addGeometry(Part.Circle(Vector(-6.1, 22.2, 0), Vector(0, 0, 1), 1.6), False)
sketch3.addGeometry(Part.Circle(Vector(-6.1, -22.2, 0), Vector(0, 0, 1), 1.6), False)
sketch3.addConstraint(Sketcher.Constraint("Equal", 0, 1))
sketch3.addConstraint(Sketcher.Constraint("Symmetric", 0, 3, 1, 3, -1))
sketch3.addConstraint(Sketcher.Constraint("Diameter", 0, Q("0.126 in")))
sketch3.addConstraint(Sketcher.Constraint("DistanceX", 0, 3, -1, 1, Q("0.24 in")))
sketch3.addConstraint(Sketcher.Constraint("DistanceY", 1, 3, 0, 3, Q("1.75 in")))
pocket2 = body.newObject("PartDesign::Pocket", "Pocket001")
pocket2.Profile = sketch3
pocket2.Length = Q("0.4 in")

# Sketch on YZ plane
sketch4 = body.newObject("Sketcher::SketchObject", "Sketch003")
sketch4.AttachmentSupport = (doc.getObject("YZ_Plane"), [""])
sketch4.MapMode = "FlatFace"
sketch4.AttachmentOffset = App.Placement(Vector(0, 0, -2.775 * 25.4), App.Rotation())
sketch4.addGeometry(Part.Circle(Vector(-6.1, 22.2, 0), Vector(0, 0, 1), 1.6), False)
sketch4.addGeometry(Part.Circle(Vector(-6.1, -22.2, 0), Vector(0, 0, 1), 1.6), False)
sketch4.addConstraint(Sketcher.Constraint("Equal", 0, 1))
sketch4.addConstraint(Sketcher.Constraint("Symmetric", 0, 3, 1, 3, -1))
sketch4.addConstraint(Sketcher.Constraint("Diameter", 0, Q("0.126 in")))
sketch4.addConstraint(Sketcher.Constraint("DistanceX", 0, 3, -1, 1, Q("0.24 in")))
sketch4.addConstraint(Sketcher.Constraint("DistanceY", 1, 3, 0, 3, Q("1.75 in")))
pocket3 = body.newObject("PartDesign::Pocket", "Pocket002")
pocket3.Profile = sketch4
pocket3.Length = Q("0.4 in")
pocket3.Reversed = True

# Sketch on XZ plane
sketch5 = body.newObject("Sketcher::SketchObject", "Sketch004")
sketch5.AttachmentSupport = (doc.getObject("XZ_Plane"), [""])
sketch5.MapMode = "FlatFace"
sketch5.addGeometry(Part.Circle(Vector(0, -20.3, 0), Vector(0, 0, 1), 2.4), False)
sketch5.addGeometry(Part.Circle(Vector(0, 20.3, 0), Vector(0, 0, 1), 2.4), False)
sketch5.addGeometry(Part.Circle(Vector(-22.2, 0, 0), Vector(0, 0, 1), 1.6), False)
sketch5.addGeometry(Part.Circle(Vector(22.2, 0, 0), Vector(0, 0, 1), 1.6), False)
sketch5.addConstraint(Sketcher.Constraint("Equal", 0, 1))
sketch5.addConstraint(Sketcher.Constraint("Equal", 2, 3))
sketch5.addConstraint(Sketcher.Constraint("Symmetric", 0, 3, 1, 3, -1, 1))
sketch5.addConstraint(Sketcher.Constraint("Symmetric", 2, 3, 3, 3, -1, 1))
sketch5.addConstraint(Sketcher.Constraint("PointOnObject", 0, 3, -2))
sketch5.addConstraint(Sketcher.Constraint("PointOnObject", 2, 3, -1))
sketch5.addConstraint(Sketcher.Constraint("Diameter", 0, Q("0.19 in")))
sketch5.addConstraint(Sketcher.Constraint("Diameter", 2, Q("0.126 in")))
sketch5.addConstraint(Sketcher.Constraint("DistanceY", 0, 3, -1, 1, Q("0.8 in")))
sketch5.addConstraint(Sketcher.Constraint("DistanceX", 2, 3, 3, 3, Q("1.75 in")))
pocket4 = body.newObject("PartDesign::Pocket", "Pocket003")
pocket4.Profile = sketch5
pocket4.Type = "ThroughAll"
pocket4.Reversed = True

# Sketch on XZ plane
sketch6 = body.newObject("Sketcher::SketchObject", "Sketch005")
sketch6.AttachmentSupport = (doc.getObject("XZ_Plane"), [""])
sketch6.MapMode = "FlatFace"
sketch6.AttachmentOffset = App.Placement(Vector(0, 0, 0.48 * 25.4), App.Rotation())
sketch6.addGeometry(Part.Circle(Vector(0, -20.3, 0), Vector(0, 0, 1), 4.1), False)
sketch6.addGeometry(Part.Circle(Vector(0, 20.3, 0), Vector(0, 0, 1), 4.1), False)
sketch6.addConstraint(Sketcher.Constraint("Equal", 0, 1))
sketch6.addConstraint(Sketcher.Constraint("Symmetric", 0, 3, 1, 3, -1, 1))
sketch6.addConstraint(Sketcher.Constraint("PointOnObject", 0, 3, -2))
sketch6.addConstraint(Sketcher.Constraint("Diameter", 0, Q("0.32 in")))
sketch6.addConstraint(Sketcher.Constraint("DistanceY", 0, 3, -1, 1, Q("0.8 in")))
pocket5 = body.newObject("PartDesign::Pocket", "Pocket004")
pocket5.Profile = sketch6
pocket5.Length = Q("0.2 in")

doc.recompute()
